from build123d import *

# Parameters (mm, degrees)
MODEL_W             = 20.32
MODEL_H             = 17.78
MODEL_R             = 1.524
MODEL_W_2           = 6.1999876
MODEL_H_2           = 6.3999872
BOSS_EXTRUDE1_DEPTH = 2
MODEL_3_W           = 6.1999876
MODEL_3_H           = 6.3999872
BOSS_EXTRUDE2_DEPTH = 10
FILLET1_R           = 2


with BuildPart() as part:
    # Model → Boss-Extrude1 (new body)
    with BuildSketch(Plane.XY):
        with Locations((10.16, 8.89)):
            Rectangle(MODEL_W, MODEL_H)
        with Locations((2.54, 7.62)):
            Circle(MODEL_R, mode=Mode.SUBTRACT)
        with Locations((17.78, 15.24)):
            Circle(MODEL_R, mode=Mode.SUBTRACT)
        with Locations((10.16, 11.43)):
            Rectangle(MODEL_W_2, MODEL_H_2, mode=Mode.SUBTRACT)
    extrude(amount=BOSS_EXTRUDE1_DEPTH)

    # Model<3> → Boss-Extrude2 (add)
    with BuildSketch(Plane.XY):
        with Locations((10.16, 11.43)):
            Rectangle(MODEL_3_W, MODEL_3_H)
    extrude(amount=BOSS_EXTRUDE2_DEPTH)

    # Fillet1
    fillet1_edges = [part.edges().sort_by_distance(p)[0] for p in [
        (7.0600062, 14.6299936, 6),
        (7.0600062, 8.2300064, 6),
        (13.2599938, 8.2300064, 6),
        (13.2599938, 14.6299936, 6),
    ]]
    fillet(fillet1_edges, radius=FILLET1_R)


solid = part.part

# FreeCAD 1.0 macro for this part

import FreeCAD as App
import Part
import Sketcher
from FreeCAD import Vector
Q = App.Units.Quantity


def edges_at(feature, points):
    """Names of the edges that pass closest to the given points."""
    edges = feature.Shape.Edges
    near = lambda p: min(range(len(edges)), key=lambda i: edges[i].distToShape(Part.Vertex(*p))[0])
    return sorted({f"Edge{near(p) + 1}" for p in points})


def add_polygon(sketch, points):
    """Adds a closed chain of lines whose ends are joined by coincident constraints."""
    first, n = sketch.GeometryCount, len(points)
    for a, b in zip(points, points[1:] + points[:1]):
        sketch.addGeometry(Part.LineSegment(App.Vector(*a, 0), App.Vector(*b, 0)), False)
    for i in range(n):
        sketch.addConstraint(Sketcher.Constraint("Coincident", first + i, 2, first + (i + 1) % n, 1))

doc = App.newDocument("Part")
params = doc.addObject("Spreadsheet::Sheet", "Params")
for row, (alias, value) in enumerate([
    ("sketch1_diameter", "0.12 in"),
    ("sketch1_width", "0.8 in"),
    ("sketch1_height", "0.7 in"),
    ("pad1_length", "2 mm"),
    ("pad2_length", "10 mm"),
    ("fillet_radius", "2 mm"),
], start=1):
    params.set(f"A{row}", alias)
    params.set(f"B{row}", "=" + value)
    params.setAlias(f"B{row}", alias)

body = doc.addObject("PartDesign::Body", "Body")

# Sketch on XY plane
sketch1 = doc.addObject("Sketcher::SketchObject", "Sketch")
body.addObject(sketch1)
sketch1.AttachmentSupport = (doc.XY_Plane, [""])
sketch1.MapMode = "FlatFace"
add_polygon(sketch1, [(0, 17.8), (0, 0), (20.3, 0), (20.3, 17.8)])  # lines 0-3
sketch1.addGeometry(Part.Circle(Vector(2.5, 7.6, 0), Vector(0, 0, 1), 1.5), False)  # 4
add_polygon(sketch1, [(13.3, 8.2), (7.1, 8.2), (7.1, 14.6), (13.3, 14.6)])  # lines 5-8
sketch1.addGeometry(Part.Circle(Vector(17.8, 15.2, 0), Vector(0, 0, 1), 1.5), False)  # 9
sketch1.addConstraint(Sketcher.Constraint("Vertical", 0))
sketch1.addConstraint(Sketcher.Constraint("Horizontal", 1))
sketch1.addConstraint(Sketcher.Constraint("Vertical", 2))
sketch1.addConstraint(Sketcher.Constraint("Horizontal", 3))
sketch1.addConstraint(Sketcher.Constraint("Horizontal", 5))
sketch1.addConstraint(Sketcher.Constraint("Vertical", 6))
sketch1.addConstraint(Sketcher.Constraint("Horizontal", 7))
sketch1.addConstraint(Sketcher.Constraint("Vertical", 8))
sketch1.addConstraint(Sketcher.Constraint("Coincident", 0, 2, -1, 1))
sketch1.addConstraint(Sketcher.Constraint("Equal", 4, 9))
sketch1.addConstraint(Sketcher.Constraint("Diameter", 4, Q("0.12 in")))
sketch1.addConstraint(Sketcher.Constraint("DistanceX", 1, 1, 1, 2, Q("0.8 in")))
sketch1.addConstraint(Sketcher.Constraint("DistanceY", 0, 2, 0, 1, Q("0.7 in")))
sketch1.addConstraint(Sketcher.Constraint("DistanceX", -1, 1, 4, 3, Q("0.1 in")))
sketch1.addConstraint(Sketcher.Constraint("DistanceY", -1, 1, 4, 3, Q("0.3 in")))
sketch1.addConstraint(Sketcher.Constraint("DistanceX", -1, 1, 9, 3, Q("0.7 in")))
sketch1.addConstraint(Sketcher.Constraint("DistanceY", -1, 1, 9, 3, Q("0.6 in")))
sketch1.addConstraint(Sketcher.Constraint("DistanceX", 5, 2, 5, 1, Q("6.199988 mm")))
sketch1.addConstraint(Sketcher.Constraint("DistanceY", 6, 1, 6, 2, Q("6.399987 mm")))
sketch1.addConstraint(Sketcher.Constraint("DistanceX", -1, 1, 5, 2, Q("7.060006 mm")))
sketch1.addConstraint(Sketcher.Constraint("DistanceY", -1, 1, 5, 2, Q("8.230006 mm")))
sketch1.setExpression("Constraints[18]", "Params.sketch1_diameter")
sketch1.setExpression("Constraints[19]", "Params.sketch1_width")
sketch1.setExpression("Constraints[20]", "Params.sketch1_height")
pad1 = doc.addObject("PartDesign::Pad", "Pad")
body.addObject(pad1)
pad1.Profile = sketch1
pad1.setExpression("Length", "Params.pad1_length")

# Sketch on XY plane
sketch2 = doc.addObject("Sketcher::SketchObject", "Sketch001")
body.addObject(sketch2)
sketch2.AttachmentSupport = (doc.XY_Plane, [""])
sketch2.MapMode = "FlatFace"
add_polygon(sketch2, [(7, 15), (7, 8), (13, 8), (13, 15)])  # lines 0-3
sketch2.addConstraint(Sketcher.Constraint("Vertical", 0))
sketch2.addConstraint(Sketcher.Constraint("Horizontal", 1))
sketch2.addConstraint(Sketcher.Constraint("Vertical", 2))
sketch2.addConstraint(Sketcher.Constraint("Horizontal", 3))
sketch2.addConstraint(Sketcher.Constraint("DistanceX", 1, 1, 1, 2, Q("6.199988 mm")))
sketch2.addConstraint(Sketcher.Constraint("DistanceY", 0, 2, 0, 1, Q("6.399987 mm")))
sketch2.addConstraint(Sketcher.Constraint("DistanceX", -1, 1, 0, 2, Q("7.060006 mm")))
sketch2.addConstraint(Sketcher.Constraint("DistanceY", -1, 1, 0, 2, Q("8.230006 mm")))
pad2 = doc.addObject("PartDesign::Pad", "Pad001")
body.addObject(pad2)
pad2.Profile = sketch2
pad2.setExpression("Length", "Params.pad2_length")
doc.recompute()

fillet = doc.addObject("PartDesign::Fillet", "Fillet")
body.addObject(fillet)
fillet.Base = (pad2, edges_at(pad2, [
    (7.06, 14.63, 6),
    (7.06, 8.23, 6),
    (13.26, 8.23, 6),
    (13.26, 14.63, 6),
]))
fillet.setExpression("Radius", "Params.fillet_radius")

doc.recompute()
